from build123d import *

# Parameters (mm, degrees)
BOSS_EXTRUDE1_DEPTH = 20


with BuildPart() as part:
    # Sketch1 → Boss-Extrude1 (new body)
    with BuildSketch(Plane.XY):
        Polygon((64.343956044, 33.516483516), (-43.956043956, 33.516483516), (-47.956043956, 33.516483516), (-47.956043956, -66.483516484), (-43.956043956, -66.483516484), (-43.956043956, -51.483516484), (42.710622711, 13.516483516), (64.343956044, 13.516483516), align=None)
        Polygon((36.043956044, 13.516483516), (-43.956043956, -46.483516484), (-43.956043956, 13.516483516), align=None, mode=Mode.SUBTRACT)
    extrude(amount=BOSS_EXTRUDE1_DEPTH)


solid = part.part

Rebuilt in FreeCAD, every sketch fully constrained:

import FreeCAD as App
import Part
import Sketcher

V = App.Vector
Q = App.Units.Quantity


def add_polygon(sketch, points):
    """Adds a closed chain of lines whose ends are joined by coincident constraints."""
    first, n = sketch.GeometryCount, len(points)
    for a, b in zip(points, points[1:] + points[:1]):
        sketch.addGeometry(Part.LineSegment(App.Vector(*a, 0), App.Vector(*b, 0)), False)
    for i in range(n):
        sketch.addConstraint(Sketcher.Constraint("Coincident", first + i, 2, first + (i + 1) % n, 1))

doc = App.newDocument("Part")
params = doc.addObject("Spreadsheet::Sheet", "Params")
for row, (alias, value) in enumerate([
    ("sketch1_width", "4 mm"),
    ("sketch1_width2", "80 mm"),
    ("sketch1_height", "100 mm"),
    ("sketch1_height2", "15 mm"),
    ("sketch1_height3", "20 mm"),
    ("pad1_length", "20 mm"),
], start=1):
    params.set(f"A{row}", alias)
    params.set(f"B{row}", "=" + value)
    params.setAlias(f"B{row}", alias)

body = doc.addObject("PartDesign::Body", "Body")

# Sketch on XY plane
sketch1 = body.newObject("Sketcher::SketchObject", "Sketch")
sketch1.AttachmentSupport = (doc.getObject("XY_Plane"), [""])
sketch1.MapMode = "FlatFace"
add_polygon(sketch1, [(64.3, 33.5), (-48, 33.5), (-48, -66.5), (-44, -66.5), (-44, -51.5), (42.7, 13.5), (64.3, 13.5)])  # lines 0-6
add_polygon(sketch1, [(-44, 13.5), (36, 13.5), (-44, -46.5)])  # lines 7-9
sketch1.addConstraint([
    Sketcher.Constraint("Horizontal", 0),
    Sketcher.Constraint("Vertical", 1),
    Sketcher.Constraint("Horizontal", 2),
    Sketcher.Constraint("Vertical", 3),
    Sketcher.Constraint("Horizontal", 5),
    Sketcher.Constraint("Vertical", 6),
    Sketcher.Constraint("Horizontal", 7),
    Sketcher.Constraint("Vertical", 9),
    Sketcher.Constraint("Parallel", 4, 8),
    Sketcher.Constraint("Horizontal", 5, 2, 7, 2),
    Sketcher.Constraint("Vertical", 3, 2, 8, 2),
    Sketcher.Constraint("DistanceX", 2, 1, 2, 2, Q("4 mm")),
    Sketcher.Constraint("DistanceX", 7, 1, 7, 2, Q("80 mm")),
    Sketcher.Constraint("DistanceY", 1, 2, 1, 1, Q("100 mm")),
    Sketcher.Constraint("DistanceY", 3, 1, 3, 2, Q("15 mm")),
    Sketcher.Constraint("DistanceY", 6, 1, 6, 2, Q("20 mm")),
    Sketcher.Constraint("DistanceY", 9, 1, 9, 2, Q("60 mm")),
    Sketcher.Constraint("DistanceX", 0, 2, 0, 1, Q("112.3 mm")),
    Sketcher.Constraint("DistanceX", 0, 2, -1, 1, Q("47.956044 mm")),
    Sketcher.Constraint("DistanceY", -1, 1, 0, 2, Q("33.516484 mm")),
])
sketch1.setExpression("Constraints[21]", "Params.sketch1_width")
sketch1.setExpression("Constraints[22]", "Params.sketch1_width2")
sketch1.setExpression("Constraints[23]", "Params.sketch1_height")
sketch1.setExpression("Constraints[24]", "Params.sketch1_height2")
sketch1.setExpression("Constraints[25]", "Params.sketch1_height3")
pad1 = body.newObject("PartDesign::Pad", "Pad")
pad1.Profile = sketch1
pad1.setExpression("Length", "Params.pad1_length")

doc.recompute()
